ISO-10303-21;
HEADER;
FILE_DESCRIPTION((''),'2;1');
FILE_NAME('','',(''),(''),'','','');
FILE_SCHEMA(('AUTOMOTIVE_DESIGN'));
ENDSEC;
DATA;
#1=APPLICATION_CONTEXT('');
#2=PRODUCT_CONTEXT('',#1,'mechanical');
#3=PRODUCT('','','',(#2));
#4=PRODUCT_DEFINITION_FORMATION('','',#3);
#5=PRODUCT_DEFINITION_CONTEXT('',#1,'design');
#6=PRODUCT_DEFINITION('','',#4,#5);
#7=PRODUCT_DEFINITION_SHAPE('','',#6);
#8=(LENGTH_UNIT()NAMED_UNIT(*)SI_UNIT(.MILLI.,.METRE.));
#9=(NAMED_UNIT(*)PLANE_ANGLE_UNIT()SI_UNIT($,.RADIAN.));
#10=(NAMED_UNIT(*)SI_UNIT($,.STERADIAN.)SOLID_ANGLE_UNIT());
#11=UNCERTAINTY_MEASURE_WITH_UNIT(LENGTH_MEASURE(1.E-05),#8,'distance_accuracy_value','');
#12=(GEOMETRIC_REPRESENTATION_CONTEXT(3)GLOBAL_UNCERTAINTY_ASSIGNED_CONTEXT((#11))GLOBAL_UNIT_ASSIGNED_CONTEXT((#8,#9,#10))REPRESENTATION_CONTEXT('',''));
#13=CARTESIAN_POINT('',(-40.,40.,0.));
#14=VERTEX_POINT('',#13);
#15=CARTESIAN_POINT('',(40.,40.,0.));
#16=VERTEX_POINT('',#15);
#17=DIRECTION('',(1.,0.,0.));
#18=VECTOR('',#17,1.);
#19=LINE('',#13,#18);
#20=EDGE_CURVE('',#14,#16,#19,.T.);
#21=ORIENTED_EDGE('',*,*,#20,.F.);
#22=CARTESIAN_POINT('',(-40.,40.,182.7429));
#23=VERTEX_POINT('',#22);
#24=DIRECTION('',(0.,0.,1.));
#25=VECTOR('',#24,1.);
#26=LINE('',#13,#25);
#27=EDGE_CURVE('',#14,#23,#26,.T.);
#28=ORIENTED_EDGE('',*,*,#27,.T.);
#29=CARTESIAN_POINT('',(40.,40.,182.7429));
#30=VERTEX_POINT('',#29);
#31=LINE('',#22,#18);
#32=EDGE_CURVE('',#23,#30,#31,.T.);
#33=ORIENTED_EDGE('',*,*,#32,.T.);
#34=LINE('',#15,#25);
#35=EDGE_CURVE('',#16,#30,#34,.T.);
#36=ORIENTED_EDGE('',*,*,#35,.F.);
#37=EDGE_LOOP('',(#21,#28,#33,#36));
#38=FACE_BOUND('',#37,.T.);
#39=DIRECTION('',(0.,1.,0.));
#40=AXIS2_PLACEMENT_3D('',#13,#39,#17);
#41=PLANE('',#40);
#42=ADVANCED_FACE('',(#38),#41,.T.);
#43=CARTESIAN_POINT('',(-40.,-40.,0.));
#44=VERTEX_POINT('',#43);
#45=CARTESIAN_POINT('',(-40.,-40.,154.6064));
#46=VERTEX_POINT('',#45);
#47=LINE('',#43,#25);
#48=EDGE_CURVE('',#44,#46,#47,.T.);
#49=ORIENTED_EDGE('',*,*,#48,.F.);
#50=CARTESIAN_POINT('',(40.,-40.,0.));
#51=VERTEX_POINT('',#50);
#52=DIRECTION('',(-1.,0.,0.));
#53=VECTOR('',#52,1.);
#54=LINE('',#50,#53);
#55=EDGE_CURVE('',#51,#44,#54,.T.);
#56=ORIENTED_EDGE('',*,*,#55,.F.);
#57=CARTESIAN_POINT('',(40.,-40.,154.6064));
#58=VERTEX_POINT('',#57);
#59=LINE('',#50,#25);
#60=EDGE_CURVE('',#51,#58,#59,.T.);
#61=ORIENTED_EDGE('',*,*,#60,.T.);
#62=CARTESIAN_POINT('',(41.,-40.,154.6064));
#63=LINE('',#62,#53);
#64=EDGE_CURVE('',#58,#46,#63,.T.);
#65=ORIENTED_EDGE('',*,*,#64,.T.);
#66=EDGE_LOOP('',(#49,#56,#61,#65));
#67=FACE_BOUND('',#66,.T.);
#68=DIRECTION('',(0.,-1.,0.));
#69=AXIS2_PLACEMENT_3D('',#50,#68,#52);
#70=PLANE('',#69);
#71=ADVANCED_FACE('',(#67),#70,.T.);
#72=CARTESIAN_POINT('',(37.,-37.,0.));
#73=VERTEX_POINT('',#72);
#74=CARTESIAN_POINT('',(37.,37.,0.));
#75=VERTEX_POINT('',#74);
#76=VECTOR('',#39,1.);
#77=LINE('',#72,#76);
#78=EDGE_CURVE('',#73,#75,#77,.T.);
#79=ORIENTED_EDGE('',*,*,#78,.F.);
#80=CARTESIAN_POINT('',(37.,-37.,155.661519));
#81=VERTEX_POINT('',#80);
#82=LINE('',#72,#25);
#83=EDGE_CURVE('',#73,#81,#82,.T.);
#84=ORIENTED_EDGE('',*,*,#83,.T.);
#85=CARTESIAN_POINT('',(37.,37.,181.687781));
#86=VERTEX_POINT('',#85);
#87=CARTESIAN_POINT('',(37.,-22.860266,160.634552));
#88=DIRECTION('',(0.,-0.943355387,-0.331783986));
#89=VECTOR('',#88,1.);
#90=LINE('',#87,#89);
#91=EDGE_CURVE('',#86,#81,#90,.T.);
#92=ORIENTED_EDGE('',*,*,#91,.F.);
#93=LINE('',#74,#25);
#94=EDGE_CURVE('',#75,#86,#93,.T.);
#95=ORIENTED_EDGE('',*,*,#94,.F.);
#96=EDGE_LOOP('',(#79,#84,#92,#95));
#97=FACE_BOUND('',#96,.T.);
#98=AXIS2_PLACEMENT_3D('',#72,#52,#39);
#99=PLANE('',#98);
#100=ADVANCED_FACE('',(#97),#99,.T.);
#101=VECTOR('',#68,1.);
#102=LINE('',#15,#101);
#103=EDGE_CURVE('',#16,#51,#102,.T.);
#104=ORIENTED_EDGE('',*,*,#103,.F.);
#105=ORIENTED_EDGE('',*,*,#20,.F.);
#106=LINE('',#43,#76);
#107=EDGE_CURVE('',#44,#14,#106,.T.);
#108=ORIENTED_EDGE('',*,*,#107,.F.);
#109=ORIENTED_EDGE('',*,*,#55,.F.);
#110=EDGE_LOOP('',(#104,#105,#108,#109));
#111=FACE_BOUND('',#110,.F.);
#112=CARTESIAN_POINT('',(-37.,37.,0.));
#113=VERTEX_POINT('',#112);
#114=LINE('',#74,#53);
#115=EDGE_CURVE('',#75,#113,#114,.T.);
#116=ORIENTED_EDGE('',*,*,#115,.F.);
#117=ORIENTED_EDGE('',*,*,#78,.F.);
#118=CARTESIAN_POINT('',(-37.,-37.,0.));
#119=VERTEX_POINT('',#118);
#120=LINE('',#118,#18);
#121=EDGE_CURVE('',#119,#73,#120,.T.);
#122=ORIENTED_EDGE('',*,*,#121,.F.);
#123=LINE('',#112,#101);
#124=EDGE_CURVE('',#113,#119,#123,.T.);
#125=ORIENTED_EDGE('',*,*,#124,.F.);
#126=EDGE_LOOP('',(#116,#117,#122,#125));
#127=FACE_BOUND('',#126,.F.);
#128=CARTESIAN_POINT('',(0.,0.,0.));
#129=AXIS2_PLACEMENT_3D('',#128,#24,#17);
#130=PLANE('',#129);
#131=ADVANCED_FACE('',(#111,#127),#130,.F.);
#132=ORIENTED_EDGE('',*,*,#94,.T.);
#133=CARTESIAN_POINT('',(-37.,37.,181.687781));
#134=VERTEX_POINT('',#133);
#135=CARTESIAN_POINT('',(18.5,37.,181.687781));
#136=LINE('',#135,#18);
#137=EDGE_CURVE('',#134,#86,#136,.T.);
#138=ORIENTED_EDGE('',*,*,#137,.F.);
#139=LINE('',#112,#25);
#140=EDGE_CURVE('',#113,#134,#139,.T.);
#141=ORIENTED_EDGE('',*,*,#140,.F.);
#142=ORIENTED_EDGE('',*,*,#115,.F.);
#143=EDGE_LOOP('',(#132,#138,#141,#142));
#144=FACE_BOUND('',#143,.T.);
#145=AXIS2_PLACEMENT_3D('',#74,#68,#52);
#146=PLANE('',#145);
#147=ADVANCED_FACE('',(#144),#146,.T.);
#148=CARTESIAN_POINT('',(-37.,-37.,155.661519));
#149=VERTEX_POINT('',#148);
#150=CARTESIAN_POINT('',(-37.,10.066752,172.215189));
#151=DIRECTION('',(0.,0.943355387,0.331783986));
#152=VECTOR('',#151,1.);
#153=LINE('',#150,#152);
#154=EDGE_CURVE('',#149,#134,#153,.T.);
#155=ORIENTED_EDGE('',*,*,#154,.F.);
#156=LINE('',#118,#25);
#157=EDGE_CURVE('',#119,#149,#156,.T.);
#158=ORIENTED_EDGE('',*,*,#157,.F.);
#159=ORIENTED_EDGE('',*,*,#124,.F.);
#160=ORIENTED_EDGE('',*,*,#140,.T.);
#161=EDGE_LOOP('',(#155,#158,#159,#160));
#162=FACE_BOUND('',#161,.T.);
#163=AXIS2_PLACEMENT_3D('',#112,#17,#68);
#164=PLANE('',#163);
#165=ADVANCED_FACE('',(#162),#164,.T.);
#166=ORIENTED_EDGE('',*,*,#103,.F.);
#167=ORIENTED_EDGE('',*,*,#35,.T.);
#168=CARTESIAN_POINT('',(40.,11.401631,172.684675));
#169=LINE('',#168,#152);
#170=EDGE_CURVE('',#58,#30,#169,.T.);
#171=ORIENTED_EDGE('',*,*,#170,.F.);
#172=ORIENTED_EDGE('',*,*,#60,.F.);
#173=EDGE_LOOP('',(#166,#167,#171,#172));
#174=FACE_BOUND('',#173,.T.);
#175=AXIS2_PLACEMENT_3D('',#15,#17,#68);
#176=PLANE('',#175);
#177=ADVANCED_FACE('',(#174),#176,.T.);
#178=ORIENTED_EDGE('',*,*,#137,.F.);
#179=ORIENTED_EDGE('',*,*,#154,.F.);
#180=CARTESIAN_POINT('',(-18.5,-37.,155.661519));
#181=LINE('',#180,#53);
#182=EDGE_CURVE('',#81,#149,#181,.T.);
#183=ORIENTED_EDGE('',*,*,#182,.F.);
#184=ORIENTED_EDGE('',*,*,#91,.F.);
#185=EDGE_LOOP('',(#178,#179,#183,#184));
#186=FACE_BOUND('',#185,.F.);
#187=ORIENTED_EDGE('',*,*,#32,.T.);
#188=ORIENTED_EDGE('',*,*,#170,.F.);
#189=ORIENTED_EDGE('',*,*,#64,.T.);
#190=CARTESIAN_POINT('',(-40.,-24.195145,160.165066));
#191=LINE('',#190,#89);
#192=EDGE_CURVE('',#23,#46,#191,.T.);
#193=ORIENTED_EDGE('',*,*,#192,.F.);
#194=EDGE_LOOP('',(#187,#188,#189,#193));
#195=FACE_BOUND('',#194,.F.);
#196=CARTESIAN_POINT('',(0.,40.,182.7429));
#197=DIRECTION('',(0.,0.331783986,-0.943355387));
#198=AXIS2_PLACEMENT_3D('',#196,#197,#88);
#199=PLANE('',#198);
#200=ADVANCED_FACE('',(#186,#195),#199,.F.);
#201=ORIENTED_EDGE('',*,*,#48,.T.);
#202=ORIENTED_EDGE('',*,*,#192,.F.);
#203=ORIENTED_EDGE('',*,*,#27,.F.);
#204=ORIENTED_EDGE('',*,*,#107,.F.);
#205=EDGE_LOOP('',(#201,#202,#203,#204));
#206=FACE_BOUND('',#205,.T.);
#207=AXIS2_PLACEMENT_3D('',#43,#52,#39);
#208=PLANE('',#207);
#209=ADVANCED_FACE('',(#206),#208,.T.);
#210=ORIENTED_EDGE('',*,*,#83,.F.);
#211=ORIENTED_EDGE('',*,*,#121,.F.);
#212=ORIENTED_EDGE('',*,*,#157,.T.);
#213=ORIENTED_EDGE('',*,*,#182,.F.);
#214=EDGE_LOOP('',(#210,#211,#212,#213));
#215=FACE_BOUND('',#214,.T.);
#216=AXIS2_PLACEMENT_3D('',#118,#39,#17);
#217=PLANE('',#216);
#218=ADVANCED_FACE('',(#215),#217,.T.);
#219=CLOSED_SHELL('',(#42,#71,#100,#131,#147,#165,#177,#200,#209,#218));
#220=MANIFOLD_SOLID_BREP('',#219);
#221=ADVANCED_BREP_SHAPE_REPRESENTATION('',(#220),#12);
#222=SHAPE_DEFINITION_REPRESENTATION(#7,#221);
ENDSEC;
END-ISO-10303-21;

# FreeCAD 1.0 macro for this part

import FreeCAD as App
import Part
import Sketcher
from FreeCAD import Vector
Q = App.Units.Quantity

doc = App.newDocument("Part")
body = doc.addObject("PartDesign::Body", "Body")

sketch1 = body.newObject("Sketcher::SketchObject", "Sketch")
sketch1.AttachmentSupport = (doc.getObject("XY_Plane"), [""])
sketch1.MapMode = "FlatFace"
sketch1.addGeometry([
    Part.LineSegment(Vector(-40, -40, 0), Vector(40, -40, 0)),
    Part.LineSegment(Vector(40, -40, 0), Vector(40, 40, 0)),
    Part.LineSegment(Vector(40, 40, 0), Vector(-40, 40, 0)),
    Part.LineSegment(Vector(-40, 40, 0), Vector(-40, -40, 0)),
    Part.LineSegment(Vector(37, -37, 0), Vector(-37, -37, 0)),
    Part.LineSegment(Vector(-37, -37, 0), Vector(-37, 37, 0)),
    Part.LineSegment(Vector(-37, 37, 0), Vector(37, 37, 0)),
    Part.LineSegment(Vector(37, 37, 0), Vector(37, -37, 0)),
], False)
sketch1.addConstraint([
    Sketcher.Constraint("Coincident", 0, 2, 1, 1),
    Sketcher.Constraint("Coincident", 1, 2, 2, 1),
    Sketcher.Constraint("Coincident", 2, 2, 3, 1),
    Sketcher.Constraint("Coincident", 3, 2, 0, 1),
    Sketcher.Constraint("Coincident", 4, 2, 5, 1),
    Sketcher.Constraint("Coincident", 5, 2, 6, 1),
    Sketcher.Constraint("Coincident", 6, 2, 7, 1),
    Sketcher.Constraint("Coincident", 7, 2, 4, 1),
    Sketcher.Constraint("Horizontal", 0),
    Sketcher.Constraint("Vertical", 1),
    Sketcher.Constraint("Horizontal", 2),
    Sketcher.Constraint("Vertical", 3),
    Sketcher.Constraint("Horizontal", 4),
    Sketcher.Constraint("Vertical", 5),
    Sketcher.Constraint("Horizontal", 6),
    Sketcher.Constraint("Vertical", 7),
    Sketcher.Constraint("Symmetric", 0, 2, 2, 2, -1, 1),
    Sketcher.Constraint("Symmetric", 4, 2, 6, 2, -1, 1),
    Sketcher.Constraint("Equal", 2, 1),
    Sketcher.Constraint("Equal", 6, 5),
    Sketcher.Constraint("DistanceX", 0, 1, 0, 2, Q("80 mm")),
    Sketcher.Constraint("DistanceX", 3, 2, 4, 2, Q("3 mm")),
])
pad1 = body.newObject("PartDesign::Pad", "Pad")
pad1.Profile = sketch1
pad1.Length = 182.7429

sketch2 = body.newObject("Sketcher::SketchObject", "Sketch001")
sketch2.AttachmentSupport = (doc.getObject("YZ_Plane"), [""])
sketch2.MapMode = "FlatFace"
sketch2.addGeometry([
    Part.LineSegment(Vector(-40, 155, 0), Vector(40, 183, 0)),
    Part.LineSegment(Vector(40, 183, 0), Vector(-40, 183, 0)),
    Part.LineSegment(Vector(-40, 183, 0), Vector(-40, 155, 0)),
], False)
sketch2.addConstraint([
    Sketcher.Constraint("Coincident", 0, 2, 1, 1),
    Sketcher.Constraint("Coincident", 1, 2, 2, 1),
    Sketcher.Constraint("Coincident", 2, 2, 0, 1),
    Sketcher.Constraint("Horizontal", 1),
    Sketcher.Constraint("Vertical", 2),
    Sketcher.Constraint("DistanceX", 1, 2, 1, 1, Q("80 mm")),
    Sketcher.Constraint("DistanceX", -1, 1, 0, 2, Q("40 mm")),
    Sketcher.Constraint("DistanceY", 2, 2, 2, 1, Q("28.1365 mm")),
    Sketcher.Constraint("DistanceY", -1, 1, 0, 2, Q("182.743 mm")),
])
pocket1 = body.newObject("PartDesign::Pocket", "Pocket")
pocket1.Profile = sketch2
pocket1.Type = "ThroughAll"
pocket1.Midplane = True

doc.recompute()
